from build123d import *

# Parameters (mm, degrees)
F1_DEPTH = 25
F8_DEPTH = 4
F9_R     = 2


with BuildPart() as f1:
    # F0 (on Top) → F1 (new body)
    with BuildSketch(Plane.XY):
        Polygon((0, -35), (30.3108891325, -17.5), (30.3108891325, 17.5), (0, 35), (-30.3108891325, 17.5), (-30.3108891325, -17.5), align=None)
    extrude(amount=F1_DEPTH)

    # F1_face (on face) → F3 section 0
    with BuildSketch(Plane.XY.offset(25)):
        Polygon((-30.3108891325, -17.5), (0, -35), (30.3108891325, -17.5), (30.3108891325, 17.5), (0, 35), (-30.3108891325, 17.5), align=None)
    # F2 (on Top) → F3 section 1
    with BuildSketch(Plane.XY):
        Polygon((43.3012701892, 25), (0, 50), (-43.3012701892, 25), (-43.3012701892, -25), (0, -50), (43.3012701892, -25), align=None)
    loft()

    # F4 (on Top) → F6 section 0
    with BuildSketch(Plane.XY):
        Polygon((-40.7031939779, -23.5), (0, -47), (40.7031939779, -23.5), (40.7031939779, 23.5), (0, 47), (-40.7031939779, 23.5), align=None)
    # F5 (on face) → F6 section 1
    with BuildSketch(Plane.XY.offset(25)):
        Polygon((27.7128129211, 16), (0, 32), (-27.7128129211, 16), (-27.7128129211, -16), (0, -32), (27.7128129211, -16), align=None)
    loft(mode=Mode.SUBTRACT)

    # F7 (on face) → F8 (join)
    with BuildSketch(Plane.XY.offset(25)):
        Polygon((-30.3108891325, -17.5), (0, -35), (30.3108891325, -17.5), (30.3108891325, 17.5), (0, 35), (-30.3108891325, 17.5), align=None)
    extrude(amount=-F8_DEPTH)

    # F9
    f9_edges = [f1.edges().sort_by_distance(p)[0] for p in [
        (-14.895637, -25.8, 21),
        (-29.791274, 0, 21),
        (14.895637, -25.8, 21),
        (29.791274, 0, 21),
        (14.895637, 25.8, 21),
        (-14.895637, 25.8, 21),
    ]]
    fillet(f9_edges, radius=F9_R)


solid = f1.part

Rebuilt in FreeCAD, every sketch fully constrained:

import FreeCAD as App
import Part
import Sketcher
Q = App.Units.Quantity


def edges_at(feature, points):
    """Names of the edges that pass closest to the given points."""
    edges = feature.Shape.Edges
    near = lambda p: min(range(len(edges)), key=lambda i: edges[i].distToShape(Part.Vertex(*p))[0])
    return sorted({f"Edge{near(p) + 1}" for p in points})

doc = App.newDocument("Part")
body = doc.addObject("PartDesign::Body", "Body")

# Sketch on XY plane
sketch1 = body.newObject("Sketcher::SketchObject", "Sketch")
sketch1.AttachmentSupport = (doc.getObject("XY_Plane"), [""])
sketch1.MapMode = "FlatFace"
sketch1.addGeometry([
    Part.LineSegment(App.Vector(0, -35, 0), App.Vector(30, -18, 0)),  # 0
    Part.LineSegment(App.Vector(30, -18, 0), App.Vector(30, 18, 0)),  # 1
    Part.LineSegment(App.Vector(30, 18, 0), App.Vector(0, 35, 0)),  # 2
    Part.LineSegment(App.Vector(0, 35, 0), App.Vector(-30, 18, 0)),  # 3
    Part.LineSegment(App.Vector(-30, 18, 0), App.Vector(-30, -18, 0)),  # 4
    Part.LineSegment(App.Vector(-30, -18, 0), App.Vector(0, -35, 0)),  # 5
], False)
sketch1.addConstraint([
    Sketcher.Constraint("Coincident", 0, 2, 1, 1),
    Sketcher.Constraint("Coincident", 1, 2, 2, 1),
    Sketcher.Constraint("Coincident", 2, 2, 3, 1),
    Sketcher.Constraint("Coincident", 3, 2, 4, 1),
    Sketcher.Constraint("Coincident", 4, 2, 5, 1),
    Sketcher.Constraint("Coincident", 5, 2, 0, 1),
    Sketcher.Constraint("Vertical", 1),
    Sketcher.Constraint("Vertical", 4),
    Sketcher.Constraint("Symmetric", 0, 2, 3, 2, -1, 1),
    Sketcher.Constraint("Symmetric", 2, 2, 5, 2, -1, 1),
    Sketcher.Constraint("PointOnObject", 2, 2, -2),
    Sketcher.Constraint("Parallel", 2, 5),
    Sketcher.Constraint("Horizontal", 1, 2, 3, 2),
    Sketcher.Constraint("DistanceY", 1, 1, 1, 2, Q("35 mm")),
    Sketcher.Constraint("Angle", 0, Q("30 deg")),
    Sketcher.Constraint("Distance", 0, Q("35 mm")),
])
pad1 = body.newObject("PartDesign::Pad", "Pad")
pad1.Profile = sketch1
pad1.Length = 25

# Sketch on XY plane
sketch2 = body.newObject("Sketcher::SketchObject", "Sketch001")
sketch2.AttachmentSupport = (doc.getObject("XY_Plane"), [""])
sketch2.MapMode = "FlatFace"
sketch2.AttachmentOffset = App.Placement(App.Vector(0, 0, 25), App.Rotation())
sketch2.addGeometry([
    Part.LineSegment(App.Vector(-30, -18, 0), App.Vector(0, -35, 0)),  # 0
    Part.LineSegment(App.Vector(0, -35, 0), App.Vector(30, -18, 0)),  # 1
    Part.LineSegment(App.Vector(30, -18, 0), App.Vector(30, 18, 0)),  # 2
    Part.LineSegment(App.Vector(30, 18, 0), App.Vector(0, 35, 0)),  # 3
    Part.LineSegment(App.Vector(0, 35, 0), App.Vector(-30, 18, 0)),  # 4
    Part.LineSegment(App.Vector(-30, 18, 0), App.Vector(-30, -18, 0)),  # 5
], False)
sketch2.addConstraint([
    Sketcher.Constraint("Coincident", 0, 2, 1, 1),
    Sketcher.Constraint("Coincident", 1, 2, 2, 1),
    Sketcher.Constraint("Coincident", 2, 2, 3, 1),
    Sketcher.Constraint("Coincident", 3, 2, 4, 1),
    Sketcher.Constraint("Coincident", 4, 2, 5, 1),
    Sketcher.Constraint("Coincident", 5, 2, 0, 1),
    Sketcher.Constraint("Vertical", 2),
    Sketcher.Constraint("Vertical", 5),
    Sketcher.Constraint("Symmetric", 0, 2, 3, 2, -1, 1),
    Sketcher.Constraint("Symmetric", 1, 2, 4, 2, -1, 1),
    Sketcher.Constraint("PointOnObject", 0, 2, -2),
    Sketcher.Constraint("Parallel", 0, 3),
    Sketcher.Constraint("Horizontal", 2, 2, 4, 2),
    Sketcher.Constraint("DistanceY", 2, 1, 2, 2, Q("35 mm")),
    Sketcher.Constraint("Angle", 0, Q("-30 deg")),
    Sketcher.Constraint("Distance", 0, Q("35 mm")),
])

# Sketch on XY plane
sketch3 = body.newObject("Sketcher::SketchObject", "Sketch002")
sketch3.AttachmentSupport = (doc.getObject("XY_Plane"), [""])
sketch3.MapMode = "FlatFace"
sketch3.addGeometry([
    Part.LineSegment(App.Vector(43, 25, 0), App.Vector(0, 50, 0)),  # 0
    Part.LineSegment(App.Vector(0, 50, 0), App.Vector(-43, 25, 0)),  # 1
    Part.LineSegment(App.Vector(-43, 25, 0), App.Vector(-43, -25, 0)),  # 2
    Part.LineSegment(App.Vector(-43, -25, 0), App.Vector(0, -50, 0)),  # 3
    Part.LineSegment(App.Vector(0, -50, 0), App.Vector(43, -25, 0)),  # 4
    Part.LineSegment(App.Vector(43, -25, 0), App.Vector(43, 25, 0)),  # 5
], False)
sketch3.addConstraint([
    Sketcher.Constraint("Coincident", 0, 2, 1, 1),
    Sketcher.Constraint("Coincident", 1, 2, 2, 1),
    Sketcher.Constraint("Coincident", 2, 2, 3, 1),
    Sketcher.Constraint("Coincident", 3, 2, 4, 1),
    Sketcher.Constraint("Coincident", 4, 2, 5, 1),
    Sketcher.Constraint("Coincident", 5, 2, 0, 1),
    Sketcher.Constraint("Vertical", 2),
    Sketcher.Constraint("Vertical", 5),
    Sketcher.Constraint("Symmetric", 0, 2, 3, 2, -1, 1),
    Sketcher.Constraint("Symmetric", 1, 2, 4, 2, -1, 1),
    Sketcher.Constraint("PointOnObject", 0, 2, -2),
    Sketcher.Constraint("Parallel", 0, 3),
    Sketcher.Constraint("Horizontal", 2, 2, 4, 2),
    Sketcher.Constraint("DistanceY", 2, 2, 2, 1, Q("50 mm")),
    Sketcher.Constraint("Angle", 0, Q("150 deg")),
    Sketcher.Constraint("Distance", 0, Q("50 mm")),
])

additiveloft = body.newObject("PartDesign::AdditiveLoft", "AdditiveLoft")
additiveloft.Profile = sketch2
additiveloft.Sections = [sketch3]

# Sketch on XY plane
sketch4 = body.newObject("Sketcher::SketchObject", "Sketch003")
sketch4.AttachmentSupport = (doc.getObject("XY_Plane"), [""])
sketch4.MapMode = "FlatFace"
sketch4.addGeometry([
    Part.LineSegment(App.Vector(-41, -24, 0), App.Vector(0, -47, 0)),  # 0
    Part.LineSegment(App.Vector(0, -47, 0), App.Vector(41, -24, 0)),  # 1
    Part.LineSegment(App.Vector(41, -24, 0), App.Vector(41, 24, 0)),  # 2
    Part.LineSegment(App.Vector(41, 24, 0), App.Vector(0, 47, 0)),  # 3
    Part.LineSegment(App.Vector(0, 47, 0), App.Vector(-41, 24, 0)),  # 4
    Part.LineSegment(App.Vector(-41, 24, 0), App.Vector(-41, -24, 0)),  # 5
], False)
sketch4.addConstraint([
    Sketcher.Constraint("Coincident", 0, 2, 1, 1),
    Sketcher.Constraint("Coincident", 1, 2, 2, 1),
    Sketcher.Constraint("Coincident", 2, 2, 3, 1),
    Sketcher.Constraint("Coincident", 3, 2, 4, 1),
    Sketcher.Constraint("Coincident", 4, 2, 5, 1),
    Sketcher.Constraint("Coincident", 5, 2, 0, 1),
    Sketcher.Constraint("Vertical", 2),
    Sketcher.Constraint("Vertical", 5),
    Sketcher.Constraint("Symmetric", 0, 2, 3, 2, -1, 1),
    Sketcher.Constraint("Symmetric", 1, 2, 4, 2, -1, 1),
    Sketcher.Constraint("PointOnObject", 0, 2, -2),
    Sketcher.Constraint("Parallel", 0, 3),
    Sketcher.Constraint("Horizontal", 2, 2, 4, 2),
    Sketcher.Constraint("DistanceY", 2, 1, 2, 2, Q("47 mm")),
    Sketcher.Constraint("Angle", 0, Q("-30 deg")),
    Sketcher.Constraint("Distance", 0, Q("47 mm")),
])

# Sketch on XY plane
sketch5 = body.newObject("Sketcher::SketchObject", "Sketch004")
sketch5.AttachmentSupport = (doc.getObject("XY_Plane"), [""])
sketch5.MapMode = "FlatFace"
sketch5.AttachmentOffset = App.Placement(App.Vector(0, 0, 25), App.Rotation())
sketch5.addGeometry([
    Part.LineSegment(App.Vector(28, 16, 0), App.Vector(0, 32, 0)),  # 0
    Part.LineSegment(App.Vector(0, 32, 0), App.Vector(-28, 16, 0)),  # 1
    Part.LineSegment(App.Vector(-28, 16, 0), App.Vector(-28, -16, 0)),  # 2
    Part.LineSegment(App.Vector(-28, -16, 0), App.Vector(0, -32, 0)),  # 3
    Part.LineSegment(App.Vector(0, -32, 0), App.Vector(28, -16, 0)),  # 4
    Part.LineSegment(App.Vector(28, -16, 0), App.Vector(28, 16, 0)),  # 5
], False)
sketch5.addConstraint([
    Sketcher.Constraint("Coincident", 0, 2, 1, 1),
    Sketcher.Constraint("Coincident", 1, 2, 2, 1),
    Sketcher.Constraint("Coincident", 2, 2, 3, 1),
    Sketcher.Constraint("Coincident", 3, 2, 4, 1),
    Sketcher.Constraint("Coincident", 4, 2, 5, 1),
    Sketcher.Constraint("Coincident", 5, 2, 0, 1),
    Sketcher.Constraint("Vertical", 2),
    Sketcher.Constraint("Vertical", 5),
    Sketcher.Constraint("Symmetric", 0, 2, 3, 2, -1, 1),
    Sketcher.Constraint("Symmetric", 1, 2, 4, 2, -1, 1),
    Sketcher.Constraint("PointOnObject", 0, 2, -2),
    Sketcher.Constraint("Parallel", 0, 3),
    Sketcher.Constraint("Horizontal", 2, 2, 4, 2),
    Sketcher.Constraint("DistanceY", 2, 2, 2, 1, Q("32 mm")),
    Sketcher.Constraint("Angle", 0, Q("150 deg")),
    Sketcher.Constraint("Distance", 0, Q("32 mm")),
])

subtractiveloft = body.newObject("PartDesign::SubtractiveLoft", "SubtractiveLoft")
subtractiveloft.Profile = sketch4
subtractiveloft.Sections = [sketch5]

# Sketch on XY plane
sketch6 = body.newObject("Sketcher::SketchObject", "Sketch005")
sketch6.AttachmentSupport = (doc.getObject("XY_Plane"), [""])
sketch6.MapMode = "FlatFace"
sketch6.AttachmentOffset = App.Placement(App.Vector(0, 0, 25), App.Rotation())
sketch6.addGeometry([
    Part.LineSegment(App.Vector(-30, -18, 0), App.Vector(0, -35, 0)),  # 0
    Part.LineSegment(App.Vector(0, -35, 0), App.Vector(30, -18, 0)),  # 1
    Part.LineSegment(App.Vector(30, -18, 0), App.Vector(30, 18, 0)),  # 2
    Part.LineSegment(App.Vector(30, 18, 0), App.Vector(0, 35, 0)),  # 3
    Part.LineSegment(App.Vector(0, 35, 0), App.Vector(-30, 18, 0)),  # 4
    Part.LineSegment(App.Vector(-30, 18, 0), App.Vector(-30, -18, 0)),  # 5
], False)
sketch6.addConstraint([
    Sketcher.Constraint("Coincident", 0, 2, 1, 1),
    Sketcher.Constraint("Coincident", 1, 2, 2, 1),
    Sketcher.Constraint("Coincident", 2, 2, 3, 1),
    Sketcher.Constraint("Coincident", 3, 2, 4, 1),
    Sketcher.Constraint("Coincident", 4, 2, 5, 1),
    Sketcher.Constraint("Coincident", 5, 2, 0, 1),
    Sketcher.Constraint("Vertical", 2),
    Sketcher.Constraint("Vertical", 5),
    Sketcher.Constraint("Symmetric", 0, 2, 3, 2, -1, 1),
    Sketcher.Constraint("Symmetric", 1, 2, 4, 2, -1, 1),
    Sketcher.Constraint("PointOnObject", 0, 2, -2),
    Sketcher.Constraint("Parallel", 0, 3),
    Sketcher.Constraint("Horizontal", 2, 2, 4, 2),
    Sketcher.Constraint("DistanceY", 2, 1, 2, 2, Q("35 mm")),
    Sketcher.Constraint("Angle", 0, Q("-30 deg")),
    Sketcher.Constraint("Distance", 0, Q("35 mm")),
])
pad2 = body.newObject("PartDesign::Pad", "Pad001")
pad2.Profile = sketch6
pad2.Length = 4
pad2.Reversed = True
doc.recompute()

fillet = body.newObject("PartDesign::Fillet", "Fillet")
fillet.Base = (pad2, edges_at(pad2, [
    (-14.896, -25.8, 21),
    (-29.791, 0, 21),
    (14.896, -25.8, 21),
    (29.791, 0, 21),
    (14.896, 25.8, 21),
    (-14.896, 25.8, 21),
]))
fillet.Radius = 2

doc.recompute()
